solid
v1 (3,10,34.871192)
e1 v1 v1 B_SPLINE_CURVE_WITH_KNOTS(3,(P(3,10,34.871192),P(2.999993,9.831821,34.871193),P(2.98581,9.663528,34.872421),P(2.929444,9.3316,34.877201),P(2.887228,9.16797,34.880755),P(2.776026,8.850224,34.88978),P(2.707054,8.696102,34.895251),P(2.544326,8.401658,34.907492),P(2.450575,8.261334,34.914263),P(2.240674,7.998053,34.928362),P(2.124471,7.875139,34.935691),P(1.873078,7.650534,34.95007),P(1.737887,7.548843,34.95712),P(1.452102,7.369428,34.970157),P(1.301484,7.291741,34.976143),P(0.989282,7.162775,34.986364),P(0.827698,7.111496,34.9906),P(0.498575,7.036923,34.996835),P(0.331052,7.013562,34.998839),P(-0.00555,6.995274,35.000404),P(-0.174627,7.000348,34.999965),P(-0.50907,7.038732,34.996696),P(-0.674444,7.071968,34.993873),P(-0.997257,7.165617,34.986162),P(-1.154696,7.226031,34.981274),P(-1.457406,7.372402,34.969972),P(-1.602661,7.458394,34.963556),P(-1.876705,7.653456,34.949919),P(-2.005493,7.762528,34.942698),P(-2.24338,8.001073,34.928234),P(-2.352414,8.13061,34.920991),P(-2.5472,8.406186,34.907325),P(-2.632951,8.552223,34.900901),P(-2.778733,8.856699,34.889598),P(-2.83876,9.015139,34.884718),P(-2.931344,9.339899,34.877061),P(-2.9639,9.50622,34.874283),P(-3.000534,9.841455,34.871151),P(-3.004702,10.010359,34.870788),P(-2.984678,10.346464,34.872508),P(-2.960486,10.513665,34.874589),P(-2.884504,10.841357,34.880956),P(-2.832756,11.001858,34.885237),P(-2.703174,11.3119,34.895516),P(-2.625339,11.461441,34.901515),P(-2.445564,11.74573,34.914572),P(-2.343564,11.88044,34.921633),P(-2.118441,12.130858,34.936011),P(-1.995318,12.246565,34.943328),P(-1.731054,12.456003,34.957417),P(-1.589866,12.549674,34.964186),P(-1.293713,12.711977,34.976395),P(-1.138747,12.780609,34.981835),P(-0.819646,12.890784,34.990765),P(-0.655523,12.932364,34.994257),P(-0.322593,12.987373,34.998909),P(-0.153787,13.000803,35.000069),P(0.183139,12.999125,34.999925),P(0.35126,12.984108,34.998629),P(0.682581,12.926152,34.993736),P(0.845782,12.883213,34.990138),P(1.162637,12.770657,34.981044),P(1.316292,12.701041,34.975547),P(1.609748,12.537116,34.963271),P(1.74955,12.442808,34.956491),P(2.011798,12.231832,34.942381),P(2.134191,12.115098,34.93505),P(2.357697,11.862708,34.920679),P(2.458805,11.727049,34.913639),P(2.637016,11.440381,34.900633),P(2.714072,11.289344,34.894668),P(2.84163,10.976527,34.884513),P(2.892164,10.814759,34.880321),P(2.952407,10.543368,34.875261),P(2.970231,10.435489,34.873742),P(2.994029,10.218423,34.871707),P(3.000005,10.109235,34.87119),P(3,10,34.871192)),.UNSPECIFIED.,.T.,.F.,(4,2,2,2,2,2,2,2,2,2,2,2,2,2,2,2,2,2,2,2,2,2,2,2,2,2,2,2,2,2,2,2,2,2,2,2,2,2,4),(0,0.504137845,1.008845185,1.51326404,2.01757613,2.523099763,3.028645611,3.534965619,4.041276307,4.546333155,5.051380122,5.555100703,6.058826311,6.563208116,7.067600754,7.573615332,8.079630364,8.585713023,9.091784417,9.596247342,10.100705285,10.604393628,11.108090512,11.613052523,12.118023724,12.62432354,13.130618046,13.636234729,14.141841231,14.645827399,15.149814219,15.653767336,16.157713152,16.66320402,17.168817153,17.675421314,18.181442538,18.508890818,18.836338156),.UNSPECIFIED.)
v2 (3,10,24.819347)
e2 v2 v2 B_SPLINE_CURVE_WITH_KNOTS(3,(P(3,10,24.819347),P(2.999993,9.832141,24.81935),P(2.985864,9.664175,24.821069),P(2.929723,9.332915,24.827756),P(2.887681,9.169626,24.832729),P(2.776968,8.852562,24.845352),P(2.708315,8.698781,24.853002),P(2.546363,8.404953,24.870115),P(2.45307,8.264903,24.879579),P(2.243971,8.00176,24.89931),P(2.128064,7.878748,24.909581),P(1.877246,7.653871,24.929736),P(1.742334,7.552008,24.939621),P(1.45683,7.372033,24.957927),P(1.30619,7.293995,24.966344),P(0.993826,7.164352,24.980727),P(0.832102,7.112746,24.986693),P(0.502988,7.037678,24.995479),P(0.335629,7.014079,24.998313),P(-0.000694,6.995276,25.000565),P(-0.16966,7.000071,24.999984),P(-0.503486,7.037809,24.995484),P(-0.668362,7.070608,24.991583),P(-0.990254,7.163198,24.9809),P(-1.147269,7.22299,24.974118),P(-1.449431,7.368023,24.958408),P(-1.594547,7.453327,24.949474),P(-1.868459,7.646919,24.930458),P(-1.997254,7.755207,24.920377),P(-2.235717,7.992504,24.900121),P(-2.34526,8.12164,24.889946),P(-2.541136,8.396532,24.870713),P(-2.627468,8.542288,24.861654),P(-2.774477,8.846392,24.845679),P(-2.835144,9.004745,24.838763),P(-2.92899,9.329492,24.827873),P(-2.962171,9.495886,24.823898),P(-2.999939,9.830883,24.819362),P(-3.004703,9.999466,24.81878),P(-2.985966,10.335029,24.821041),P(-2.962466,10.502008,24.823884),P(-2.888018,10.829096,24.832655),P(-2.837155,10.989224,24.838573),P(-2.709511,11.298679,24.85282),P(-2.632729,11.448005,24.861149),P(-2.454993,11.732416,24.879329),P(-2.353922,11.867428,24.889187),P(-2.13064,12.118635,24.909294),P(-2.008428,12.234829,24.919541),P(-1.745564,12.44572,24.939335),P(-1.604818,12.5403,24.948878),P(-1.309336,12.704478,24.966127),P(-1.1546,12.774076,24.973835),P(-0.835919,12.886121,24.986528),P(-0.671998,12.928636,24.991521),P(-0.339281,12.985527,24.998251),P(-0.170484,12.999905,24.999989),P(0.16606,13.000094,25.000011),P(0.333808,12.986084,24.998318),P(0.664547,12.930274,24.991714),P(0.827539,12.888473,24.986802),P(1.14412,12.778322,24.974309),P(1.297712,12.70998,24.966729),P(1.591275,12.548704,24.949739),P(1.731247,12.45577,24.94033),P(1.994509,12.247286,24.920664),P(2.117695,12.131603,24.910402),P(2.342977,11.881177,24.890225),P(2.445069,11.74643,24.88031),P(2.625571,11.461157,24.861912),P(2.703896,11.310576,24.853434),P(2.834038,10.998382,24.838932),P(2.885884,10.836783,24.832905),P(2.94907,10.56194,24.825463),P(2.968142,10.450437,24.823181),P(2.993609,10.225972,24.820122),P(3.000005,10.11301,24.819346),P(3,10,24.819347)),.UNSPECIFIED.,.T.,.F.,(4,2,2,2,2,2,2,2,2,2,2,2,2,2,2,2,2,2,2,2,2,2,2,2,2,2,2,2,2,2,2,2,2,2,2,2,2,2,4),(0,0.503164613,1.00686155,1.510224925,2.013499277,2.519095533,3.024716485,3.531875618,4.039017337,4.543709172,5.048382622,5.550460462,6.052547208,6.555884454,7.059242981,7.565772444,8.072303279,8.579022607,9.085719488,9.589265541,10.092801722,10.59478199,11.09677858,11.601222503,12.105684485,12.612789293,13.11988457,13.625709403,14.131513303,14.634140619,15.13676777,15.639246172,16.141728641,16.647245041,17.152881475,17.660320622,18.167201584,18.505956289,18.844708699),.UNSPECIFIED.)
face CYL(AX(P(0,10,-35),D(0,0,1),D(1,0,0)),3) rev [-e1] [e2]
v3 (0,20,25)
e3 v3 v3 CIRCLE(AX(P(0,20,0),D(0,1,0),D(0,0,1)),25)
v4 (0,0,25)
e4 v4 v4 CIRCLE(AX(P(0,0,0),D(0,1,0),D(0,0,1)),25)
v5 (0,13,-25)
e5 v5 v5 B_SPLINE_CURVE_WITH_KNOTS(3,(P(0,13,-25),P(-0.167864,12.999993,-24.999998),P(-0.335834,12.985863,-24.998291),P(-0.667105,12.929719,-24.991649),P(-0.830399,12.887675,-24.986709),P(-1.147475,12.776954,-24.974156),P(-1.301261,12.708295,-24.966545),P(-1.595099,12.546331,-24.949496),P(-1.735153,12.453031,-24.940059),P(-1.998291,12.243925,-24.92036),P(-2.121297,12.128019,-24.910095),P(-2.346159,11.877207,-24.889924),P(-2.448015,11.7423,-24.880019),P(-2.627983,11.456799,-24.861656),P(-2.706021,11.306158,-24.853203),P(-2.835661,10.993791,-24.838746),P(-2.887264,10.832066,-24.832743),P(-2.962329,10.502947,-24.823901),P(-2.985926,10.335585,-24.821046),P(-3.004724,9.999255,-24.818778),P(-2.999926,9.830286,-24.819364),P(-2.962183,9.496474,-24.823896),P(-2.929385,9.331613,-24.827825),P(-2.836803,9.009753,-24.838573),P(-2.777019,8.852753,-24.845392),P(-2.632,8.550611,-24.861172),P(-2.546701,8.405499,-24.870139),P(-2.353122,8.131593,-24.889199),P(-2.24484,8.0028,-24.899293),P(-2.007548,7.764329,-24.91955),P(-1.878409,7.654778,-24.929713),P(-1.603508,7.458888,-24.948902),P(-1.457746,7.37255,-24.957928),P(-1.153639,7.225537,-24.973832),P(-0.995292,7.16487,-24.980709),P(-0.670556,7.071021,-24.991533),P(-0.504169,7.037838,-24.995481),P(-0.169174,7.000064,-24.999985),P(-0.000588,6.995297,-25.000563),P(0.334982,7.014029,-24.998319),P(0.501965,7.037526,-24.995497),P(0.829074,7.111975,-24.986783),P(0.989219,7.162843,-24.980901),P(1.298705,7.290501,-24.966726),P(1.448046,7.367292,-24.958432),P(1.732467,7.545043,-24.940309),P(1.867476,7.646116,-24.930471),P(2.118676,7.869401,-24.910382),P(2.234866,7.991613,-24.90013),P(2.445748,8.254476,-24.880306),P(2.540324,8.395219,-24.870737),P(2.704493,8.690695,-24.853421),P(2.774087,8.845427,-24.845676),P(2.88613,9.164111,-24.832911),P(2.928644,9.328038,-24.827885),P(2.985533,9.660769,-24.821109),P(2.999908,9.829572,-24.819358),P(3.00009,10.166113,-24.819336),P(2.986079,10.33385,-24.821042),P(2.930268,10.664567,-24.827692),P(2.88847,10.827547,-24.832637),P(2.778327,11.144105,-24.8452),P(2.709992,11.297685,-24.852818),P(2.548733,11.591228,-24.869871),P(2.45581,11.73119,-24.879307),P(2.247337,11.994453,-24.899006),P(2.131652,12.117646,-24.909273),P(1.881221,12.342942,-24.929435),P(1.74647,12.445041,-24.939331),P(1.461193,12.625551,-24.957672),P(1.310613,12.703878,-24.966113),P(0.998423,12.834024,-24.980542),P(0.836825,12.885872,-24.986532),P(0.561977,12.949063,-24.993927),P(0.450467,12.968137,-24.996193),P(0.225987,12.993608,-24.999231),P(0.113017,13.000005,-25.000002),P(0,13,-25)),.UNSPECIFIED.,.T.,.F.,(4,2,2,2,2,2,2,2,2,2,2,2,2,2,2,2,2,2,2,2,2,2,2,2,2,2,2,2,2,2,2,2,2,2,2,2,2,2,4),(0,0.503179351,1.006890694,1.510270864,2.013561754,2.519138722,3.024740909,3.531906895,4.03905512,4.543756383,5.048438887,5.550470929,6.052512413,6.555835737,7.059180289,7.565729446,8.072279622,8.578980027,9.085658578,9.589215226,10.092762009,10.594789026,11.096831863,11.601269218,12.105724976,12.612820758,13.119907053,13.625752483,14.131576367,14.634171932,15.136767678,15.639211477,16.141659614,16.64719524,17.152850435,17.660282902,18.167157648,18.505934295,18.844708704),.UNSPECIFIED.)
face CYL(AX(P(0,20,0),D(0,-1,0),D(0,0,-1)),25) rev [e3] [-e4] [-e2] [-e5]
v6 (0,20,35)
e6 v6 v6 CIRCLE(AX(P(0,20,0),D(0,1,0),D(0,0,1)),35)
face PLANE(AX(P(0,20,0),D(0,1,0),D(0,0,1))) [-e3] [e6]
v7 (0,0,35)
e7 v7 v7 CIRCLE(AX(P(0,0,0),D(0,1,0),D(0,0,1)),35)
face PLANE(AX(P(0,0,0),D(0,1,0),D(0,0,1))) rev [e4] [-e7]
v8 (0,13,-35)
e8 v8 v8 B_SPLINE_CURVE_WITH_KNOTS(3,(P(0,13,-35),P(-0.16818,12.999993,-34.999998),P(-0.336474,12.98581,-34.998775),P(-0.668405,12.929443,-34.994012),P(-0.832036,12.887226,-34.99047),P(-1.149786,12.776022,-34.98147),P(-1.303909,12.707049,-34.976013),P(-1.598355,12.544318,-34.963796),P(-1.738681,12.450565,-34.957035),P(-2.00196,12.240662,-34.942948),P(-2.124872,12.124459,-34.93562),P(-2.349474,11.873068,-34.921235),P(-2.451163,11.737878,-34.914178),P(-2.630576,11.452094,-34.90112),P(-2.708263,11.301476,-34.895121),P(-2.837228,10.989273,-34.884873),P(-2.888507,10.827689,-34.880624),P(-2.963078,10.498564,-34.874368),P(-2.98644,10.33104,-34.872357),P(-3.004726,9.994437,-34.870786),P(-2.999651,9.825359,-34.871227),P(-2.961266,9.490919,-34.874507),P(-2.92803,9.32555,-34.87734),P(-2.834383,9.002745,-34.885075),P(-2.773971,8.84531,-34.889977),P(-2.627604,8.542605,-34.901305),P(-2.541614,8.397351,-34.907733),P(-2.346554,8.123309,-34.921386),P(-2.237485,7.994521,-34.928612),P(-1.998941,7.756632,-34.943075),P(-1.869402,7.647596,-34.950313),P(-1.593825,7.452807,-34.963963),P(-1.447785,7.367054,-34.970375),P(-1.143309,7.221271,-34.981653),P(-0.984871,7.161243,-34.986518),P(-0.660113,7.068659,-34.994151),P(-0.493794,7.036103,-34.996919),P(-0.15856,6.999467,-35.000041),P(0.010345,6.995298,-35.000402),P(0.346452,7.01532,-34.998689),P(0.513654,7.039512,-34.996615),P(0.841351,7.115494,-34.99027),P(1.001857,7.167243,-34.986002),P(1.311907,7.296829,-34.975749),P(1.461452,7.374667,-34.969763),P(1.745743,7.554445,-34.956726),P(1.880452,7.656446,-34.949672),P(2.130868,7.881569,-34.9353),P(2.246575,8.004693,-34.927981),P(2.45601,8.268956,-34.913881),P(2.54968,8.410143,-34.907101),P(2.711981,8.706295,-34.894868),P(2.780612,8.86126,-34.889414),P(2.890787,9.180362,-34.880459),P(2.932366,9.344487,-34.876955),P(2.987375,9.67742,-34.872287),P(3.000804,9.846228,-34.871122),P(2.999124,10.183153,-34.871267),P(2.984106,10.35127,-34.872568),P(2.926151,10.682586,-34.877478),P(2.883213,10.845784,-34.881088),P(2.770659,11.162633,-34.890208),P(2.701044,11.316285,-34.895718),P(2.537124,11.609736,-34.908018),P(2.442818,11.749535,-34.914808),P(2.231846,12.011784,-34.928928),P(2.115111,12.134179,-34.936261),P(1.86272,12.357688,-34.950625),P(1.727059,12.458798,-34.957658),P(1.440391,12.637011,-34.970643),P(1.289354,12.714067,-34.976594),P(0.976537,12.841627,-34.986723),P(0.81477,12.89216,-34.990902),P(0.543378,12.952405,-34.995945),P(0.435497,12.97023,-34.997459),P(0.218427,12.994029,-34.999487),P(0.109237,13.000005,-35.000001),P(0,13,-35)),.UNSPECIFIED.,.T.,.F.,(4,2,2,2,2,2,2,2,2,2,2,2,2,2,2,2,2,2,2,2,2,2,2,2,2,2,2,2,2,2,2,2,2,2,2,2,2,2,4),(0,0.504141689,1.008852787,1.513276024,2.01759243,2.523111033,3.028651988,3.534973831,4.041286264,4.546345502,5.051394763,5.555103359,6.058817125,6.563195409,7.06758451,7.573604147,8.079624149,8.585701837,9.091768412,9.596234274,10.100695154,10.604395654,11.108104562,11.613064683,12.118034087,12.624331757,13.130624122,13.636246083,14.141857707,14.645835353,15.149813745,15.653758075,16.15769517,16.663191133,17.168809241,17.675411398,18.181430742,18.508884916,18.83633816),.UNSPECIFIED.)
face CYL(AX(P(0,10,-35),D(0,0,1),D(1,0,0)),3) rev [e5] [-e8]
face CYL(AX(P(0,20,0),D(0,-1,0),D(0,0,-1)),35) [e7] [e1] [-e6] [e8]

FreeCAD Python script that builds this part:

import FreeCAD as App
import Part
import Sketcher

V = App.Vector
Q = App.Units.Quantity

doc = App.newDocument("Part")
body = doc.addObject("PartDesign::Body", "Body")

sketch1 = body.newObject("Sketcher::SketchObject", "Sketch")
sketch1.AttachmentSupport = (doc.getObject("XZ_Plane"), [""])
sketch1.MapMode = "FlatFace"
sketch1.addGeometry([
    Part.Circle(V(0, 0, 0), V(0, 0, 1), 35),
    Part.Circle(V(0, 0, 0), V(0, 0, 1), 25),
], False)
sketch1.addConstraint([
    Sketcher.Constraint("Coincident", 0, 3, -1, 1),
    Sketcher.Constraint("Coincident", 1, 3, -1, 1),
    Sketcher.Constraint("Diameter", 0, Q("70 mm")),
    Sketcher.Constraint("Diameter", 1, Q("50 mm")),
])
pad1 = body.newObject("PartDesign::Pad", "Pad")
pad1.Profile = sketch1
pad1.Length = 20
pad1.Reversed = True

sketch2 = body.newObject("Sketcher::SketchObject", "Sketch001")
sketch2.AttachmentSupport = (doc.getObject("XY_Plane"), [""])
sketch2.MapMode = "FlatFace"
sketch2.addGeometry(Part.Circle(V(0, 10, 0), V(0, 0, 1), 3), False)
sketch2.addConstraint([
    Sketcher.Constraint("PointOnObject", 0, 3, -2),
    Sketcher.Constraint("Diameter", 0, Q("6 mm")),
    Sketcher.Constraint("DistanceY", -1, 1, 0, 3, Q("10 mm")),
])
pocket1 = body.newObject("PartDesign::Pocket", "Pocket")
pocket1.Profile = sketch2
pocket1.Type = "ThroughAll"
pocket1.Midplane = True

doc.recompute()
